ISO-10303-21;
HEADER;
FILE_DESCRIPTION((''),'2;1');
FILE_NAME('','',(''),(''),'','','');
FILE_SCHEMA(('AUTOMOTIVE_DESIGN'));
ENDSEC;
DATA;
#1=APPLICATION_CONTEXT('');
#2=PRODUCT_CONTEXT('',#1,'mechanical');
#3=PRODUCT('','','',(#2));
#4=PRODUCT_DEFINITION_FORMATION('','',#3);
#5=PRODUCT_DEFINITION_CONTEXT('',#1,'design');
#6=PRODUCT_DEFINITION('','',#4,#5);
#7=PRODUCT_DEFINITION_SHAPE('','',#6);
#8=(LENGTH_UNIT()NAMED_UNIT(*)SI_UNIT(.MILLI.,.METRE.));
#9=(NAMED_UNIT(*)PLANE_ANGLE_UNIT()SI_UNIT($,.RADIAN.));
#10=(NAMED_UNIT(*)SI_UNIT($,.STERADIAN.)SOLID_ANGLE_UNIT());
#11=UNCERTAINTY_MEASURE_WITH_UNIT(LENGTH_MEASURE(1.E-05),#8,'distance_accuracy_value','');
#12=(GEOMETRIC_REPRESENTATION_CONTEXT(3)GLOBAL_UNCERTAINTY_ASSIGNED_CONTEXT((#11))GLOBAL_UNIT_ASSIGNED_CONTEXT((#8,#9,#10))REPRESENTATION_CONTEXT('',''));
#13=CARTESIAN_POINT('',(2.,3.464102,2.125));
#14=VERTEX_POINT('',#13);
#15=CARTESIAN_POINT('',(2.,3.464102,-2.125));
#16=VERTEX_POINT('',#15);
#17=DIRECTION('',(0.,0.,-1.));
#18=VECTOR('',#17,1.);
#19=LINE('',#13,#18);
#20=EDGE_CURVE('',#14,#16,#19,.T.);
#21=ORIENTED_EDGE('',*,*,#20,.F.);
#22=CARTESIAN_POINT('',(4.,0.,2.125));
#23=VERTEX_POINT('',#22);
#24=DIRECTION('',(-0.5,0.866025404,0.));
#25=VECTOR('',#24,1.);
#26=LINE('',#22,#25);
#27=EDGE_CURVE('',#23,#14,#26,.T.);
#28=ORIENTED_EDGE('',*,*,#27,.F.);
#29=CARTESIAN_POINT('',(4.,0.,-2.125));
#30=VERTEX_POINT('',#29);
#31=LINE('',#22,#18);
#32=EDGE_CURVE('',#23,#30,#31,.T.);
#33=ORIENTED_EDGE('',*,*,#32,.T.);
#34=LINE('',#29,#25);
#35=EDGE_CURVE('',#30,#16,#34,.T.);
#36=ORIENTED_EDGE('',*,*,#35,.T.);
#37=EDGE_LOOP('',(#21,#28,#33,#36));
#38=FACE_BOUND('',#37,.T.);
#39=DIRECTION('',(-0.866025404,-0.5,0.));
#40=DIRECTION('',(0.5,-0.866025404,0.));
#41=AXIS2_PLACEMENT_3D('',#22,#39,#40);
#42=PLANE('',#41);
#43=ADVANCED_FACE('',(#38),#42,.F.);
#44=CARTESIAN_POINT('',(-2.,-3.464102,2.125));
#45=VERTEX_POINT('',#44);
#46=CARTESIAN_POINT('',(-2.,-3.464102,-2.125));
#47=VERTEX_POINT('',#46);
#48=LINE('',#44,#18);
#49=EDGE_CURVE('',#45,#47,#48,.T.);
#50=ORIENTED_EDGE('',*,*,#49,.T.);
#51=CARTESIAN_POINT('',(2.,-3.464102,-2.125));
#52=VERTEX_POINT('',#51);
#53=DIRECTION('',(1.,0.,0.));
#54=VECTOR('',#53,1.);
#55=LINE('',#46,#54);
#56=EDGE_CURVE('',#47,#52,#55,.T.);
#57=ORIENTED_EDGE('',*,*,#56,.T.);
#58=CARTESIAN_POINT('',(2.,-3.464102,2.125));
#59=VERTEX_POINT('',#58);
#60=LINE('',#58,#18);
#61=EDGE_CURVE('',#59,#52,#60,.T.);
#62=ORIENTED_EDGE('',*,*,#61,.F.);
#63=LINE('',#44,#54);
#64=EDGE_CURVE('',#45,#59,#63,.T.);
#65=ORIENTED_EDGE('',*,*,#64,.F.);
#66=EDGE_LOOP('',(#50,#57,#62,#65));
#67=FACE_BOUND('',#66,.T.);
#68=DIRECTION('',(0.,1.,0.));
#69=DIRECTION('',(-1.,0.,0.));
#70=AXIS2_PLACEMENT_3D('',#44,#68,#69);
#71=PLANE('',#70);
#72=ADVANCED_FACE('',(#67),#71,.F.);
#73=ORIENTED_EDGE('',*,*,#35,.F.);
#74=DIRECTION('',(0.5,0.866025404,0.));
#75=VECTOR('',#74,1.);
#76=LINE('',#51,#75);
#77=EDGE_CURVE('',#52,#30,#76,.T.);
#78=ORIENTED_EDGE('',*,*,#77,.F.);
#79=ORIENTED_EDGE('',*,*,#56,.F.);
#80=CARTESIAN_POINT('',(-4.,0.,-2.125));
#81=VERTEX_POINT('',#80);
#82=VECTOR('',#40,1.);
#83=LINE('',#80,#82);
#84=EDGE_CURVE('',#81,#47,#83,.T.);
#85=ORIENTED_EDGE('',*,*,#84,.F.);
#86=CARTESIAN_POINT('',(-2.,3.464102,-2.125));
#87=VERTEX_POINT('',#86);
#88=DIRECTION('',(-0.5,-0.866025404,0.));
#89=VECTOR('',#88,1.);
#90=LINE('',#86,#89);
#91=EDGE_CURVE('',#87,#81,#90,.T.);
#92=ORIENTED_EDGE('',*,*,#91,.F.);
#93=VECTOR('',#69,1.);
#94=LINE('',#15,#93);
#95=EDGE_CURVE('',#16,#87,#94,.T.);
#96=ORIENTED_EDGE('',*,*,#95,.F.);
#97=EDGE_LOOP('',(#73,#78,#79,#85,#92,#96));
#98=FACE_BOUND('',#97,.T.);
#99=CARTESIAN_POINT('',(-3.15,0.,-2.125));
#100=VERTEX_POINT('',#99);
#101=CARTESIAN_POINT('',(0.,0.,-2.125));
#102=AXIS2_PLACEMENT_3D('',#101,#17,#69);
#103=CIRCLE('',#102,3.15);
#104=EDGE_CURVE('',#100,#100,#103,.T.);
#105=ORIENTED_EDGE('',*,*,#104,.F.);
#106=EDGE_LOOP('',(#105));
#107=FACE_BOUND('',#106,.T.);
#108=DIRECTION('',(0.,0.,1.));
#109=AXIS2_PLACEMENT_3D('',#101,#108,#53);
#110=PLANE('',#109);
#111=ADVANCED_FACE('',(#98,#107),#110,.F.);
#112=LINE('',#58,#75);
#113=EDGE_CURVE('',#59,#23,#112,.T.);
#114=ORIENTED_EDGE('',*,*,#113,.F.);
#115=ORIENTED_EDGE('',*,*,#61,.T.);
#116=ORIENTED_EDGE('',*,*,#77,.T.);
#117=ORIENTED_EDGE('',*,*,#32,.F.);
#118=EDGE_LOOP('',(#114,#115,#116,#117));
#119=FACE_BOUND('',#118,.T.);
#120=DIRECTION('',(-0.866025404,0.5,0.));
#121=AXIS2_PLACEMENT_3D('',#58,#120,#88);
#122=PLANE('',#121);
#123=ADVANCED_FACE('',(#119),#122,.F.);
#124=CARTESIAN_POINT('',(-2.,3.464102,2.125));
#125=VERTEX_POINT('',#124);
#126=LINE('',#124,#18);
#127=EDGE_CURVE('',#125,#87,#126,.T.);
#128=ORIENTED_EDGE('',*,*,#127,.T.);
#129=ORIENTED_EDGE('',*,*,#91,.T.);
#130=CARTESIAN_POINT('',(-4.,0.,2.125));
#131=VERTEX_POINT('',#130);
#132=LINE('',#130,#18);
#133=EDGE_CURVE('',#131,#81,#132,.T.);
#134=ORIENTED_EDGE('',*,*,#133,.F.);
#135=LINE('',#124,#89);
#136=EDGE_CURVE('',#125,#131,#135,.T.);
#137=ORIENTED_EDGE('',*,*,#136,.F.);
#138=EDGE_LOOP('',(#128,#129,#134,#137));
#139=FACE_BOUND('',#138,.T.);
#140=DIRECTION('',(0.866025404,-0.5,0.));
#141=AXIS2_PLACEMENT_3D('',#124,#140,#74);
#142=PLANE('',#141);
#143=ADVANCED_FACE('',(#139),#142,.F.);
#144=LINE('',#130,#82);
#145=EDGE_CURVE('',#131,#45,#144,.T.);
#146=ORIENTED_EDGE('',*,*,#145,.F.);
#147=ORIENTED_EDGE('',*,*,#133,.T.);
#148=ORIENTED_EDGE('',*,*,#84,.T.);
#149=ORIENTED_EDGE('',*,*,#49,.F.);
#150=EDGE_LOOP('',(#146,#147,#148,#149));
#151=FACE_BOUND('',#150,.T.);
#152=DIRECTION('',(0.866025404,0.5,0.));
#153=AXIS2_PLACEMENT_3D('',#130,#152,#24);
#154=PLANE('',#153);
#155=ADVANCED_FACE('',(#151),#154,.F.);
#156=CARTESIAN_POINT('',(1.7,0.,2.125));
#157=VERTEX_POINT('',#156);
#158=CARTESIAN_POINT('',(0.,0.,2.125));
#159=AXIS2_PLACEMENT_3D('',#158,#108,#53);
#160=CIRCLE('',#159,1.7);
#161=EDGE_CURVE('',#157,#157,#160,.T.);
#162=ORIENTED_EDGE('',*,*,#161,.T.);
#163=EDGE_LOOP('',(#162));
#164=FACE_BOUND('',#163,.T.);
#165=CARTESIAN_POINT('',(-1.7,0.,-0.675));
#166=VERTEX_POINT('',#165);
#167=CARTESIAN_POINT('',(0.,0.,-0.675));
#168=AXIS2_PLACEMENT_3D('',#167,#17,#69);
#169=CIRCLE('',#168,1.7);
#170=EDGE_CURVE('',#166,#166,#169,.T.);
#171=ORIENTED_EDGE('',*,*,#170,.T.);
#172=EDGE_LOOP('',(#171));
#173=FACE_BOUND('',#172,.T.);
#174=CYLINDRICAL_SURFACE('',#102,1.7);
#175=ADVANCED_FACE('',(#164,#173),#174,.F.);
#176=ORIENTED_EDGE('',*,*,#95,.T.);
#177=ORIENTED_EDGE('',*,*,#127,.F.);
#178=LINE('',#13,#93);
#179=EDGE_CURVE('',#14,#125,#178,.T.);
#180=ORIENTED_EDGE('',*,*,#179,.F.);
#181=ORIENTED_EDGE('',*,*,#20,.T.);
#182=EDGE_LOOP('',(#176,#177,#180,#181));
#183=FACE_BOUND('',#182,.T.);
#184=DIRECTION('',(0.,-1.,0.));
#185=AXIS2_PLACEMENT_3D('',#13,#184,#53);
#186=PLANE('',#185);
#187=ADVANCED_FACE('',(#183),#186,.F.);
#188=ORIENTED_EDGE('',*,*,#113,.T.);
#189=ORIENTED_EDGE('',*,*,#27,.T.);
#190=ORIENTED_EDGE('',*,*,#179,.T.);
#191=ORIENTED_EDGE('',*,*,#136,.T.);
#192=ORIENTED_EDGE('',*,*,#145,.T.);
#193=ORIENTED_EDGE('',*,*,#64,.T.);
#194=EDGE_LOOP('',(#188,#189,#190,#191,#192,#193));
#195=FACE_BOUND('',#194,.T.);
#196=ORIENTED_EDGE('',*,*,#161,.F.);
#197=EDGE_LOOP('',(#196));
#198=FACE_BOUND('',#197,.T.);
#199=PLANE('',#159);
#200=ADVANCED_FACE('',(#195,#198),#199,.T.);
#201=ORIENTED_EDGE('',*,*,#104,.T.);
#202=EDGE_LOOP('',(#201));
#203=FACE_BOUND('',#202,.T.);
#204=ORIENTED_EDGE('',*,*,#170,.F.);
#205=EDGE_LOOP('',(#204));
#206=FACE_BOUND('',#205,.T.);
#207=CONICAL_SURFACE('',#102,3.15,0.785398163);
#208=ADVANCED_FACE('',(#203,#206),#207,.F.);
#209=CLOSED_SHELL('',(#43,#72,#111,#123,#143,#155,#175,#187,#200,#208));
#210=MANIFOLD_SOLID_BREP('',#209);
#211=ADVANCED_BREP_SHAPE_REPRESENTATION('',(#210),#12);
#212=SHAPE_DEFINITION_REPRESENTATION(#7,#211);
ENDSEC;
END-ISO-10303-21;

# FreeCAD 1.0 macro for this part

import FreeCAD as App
import Part
import Sketcher
Q = App.Units.Quantity

doc = App.newDocument("Part")
params = doc.addObject("Spreadsheet::Sheet", "Params")
for row, (alias, value) in enumerate([
    ("sketch1_width", "4 mm"),
    ("sketch1_length", "4 mm"),
    ("pad1_length", "4.25 mm"),
    ("sketch2_diameter", "3.4 mm"),
    ("hole_diameter", "3.4 mm"),
    ("hole_depth", "5 mm"),
    ("hole_csink_diameter", "6.3 mm"),
], start=1):
    params.set(f"A{row}", alias)
    params.set(f"B{row}", "=" + value)
    params.setAlias(f"B{row}", alias)

body = doc.addObject("PartDesign::Body", "Body")

sketch1 = body.newObject("Sketcher::SketchObject", "Sketch")
sketch1.AttachmentSupport = (doc.getObject("XY_Plane"), [""])
sketch1.MapMode = "FlatFace"
sketch1.addGeometry(Part.LineSegment(App.Vector(2, -3.5, 0), App.Vector(4, 0, 0)), False)
sketch1.addGeometry(Part.LineSegment(App.Vector(4, 0, 0), App.Vector(2, 3.5, 0)), False)
sketch1.addGeometry(Part.LineSegment(App.Vector(2, 3.5, 0), App.Vector(-2, 3.5, 0)), False)
sketch1.addGeometry(Part.LineSegment(App.Vector(-2, 3.5, 0), App.Vector(-4, 0, 0)), False)
sketch1.addGeometry(Part.LineSegment(App.Vector(-4, 0, 0), App.Vector(-2, -3.5, 0)), False)
sketch1.addGeometry(Part.LineSegment(App.Vector(-2, -3.5, 0), App.Vector(2, -3.5, 0)), False)
sketch1.addConstraint(Sketcher.Constraint("Coincident", 0, 2, 1, 1))
sketch1.addConstraint(Sketcher.Constraint("Coincident", 1, 2, 2, 1))
sketch1.addConstraint(Sketcher.Constraint("Coincident", 2, 2, 3, 1))
sketch1.addConstraint(Sketcher.Constraint("Coincident", 3, 2, 4, 1))
sketch1.addConstraint(Sketcher.Constraint("Coincident", 4, 2, 5, 1))
sketch1.addConstraint(Sketcher.Constraint("Coincident", 5, 2, 0, 1))
sketch1.addConstraint(Sketcher.Constraint("Horizontal", 2))
sketch1.addConstraint(Sketcher.Constraint("Horizontal", 5))
sketch1.addConstraint(Sketcher.Constraint("Symmetric", 0, 2, 3, 2, -1, 1))
sketch1.addConstraint(Sketcher.Constraint("Symmetric", 1, 2, 4, 2, -1, 1))
sketch1.addConstraint(Sketcher.Constraint("PointOnObject", 0, 2, -1))
sketch1.addConstraint(Sketcher.Constraint("Parallel", 0, 3))
sketch1.addConstraint(Sketcher.Constraint("Vertical", 2, 2, 4, 2))
sketch1.addConstraint(Sketcher.Constraint("DistanceX", 2, 2, 2, 1, 4.0))
sketch1.addConstraint(Sketcher.Constraint("Angle", 0, Q("60 deg")))
sketch1.addConstraint(Sketcher.Constraint("Distance", 0, 4.0))
sketch1.setExpression("Constraints[13]", "Params.sketch1_width")
sketch1.setExpression("Constraints[15]", "Params.sketch1_length")
pad1 = body.newObject("PartDesign::Pad", "Pad")
pad1.Profile = sketch1
pad1.setExpression("Length", "Params.pad1_length")
pad1.Midplane = True

sketch2 = body.newObject("Sketcher::SketchObject", "Sketch001")
sketch2.AttachmentSupport = (doc.getObject("XY_Plane"), [""])
sketch2.MapMode = "FlatFace"
sketch2.AttachmentOffset = App.Placement(App.Vector(0, 0, -2.125), App.Rotation())
sketch2.addGeometry(Part.Circle(App.Vector(0, 0, 0), App.Vector(0, 0, 1), 1.7), False)
sketch2.addConstraint(Sketcher.Constraint("Coincident", 0, 3, -1, 1))
sketch2.addConstraint(Sketcher.Constraint("Diameter", 0, 3.4))
sketch2.setExpression("Constraints[1]", "Params.sketch2_diameter")
doc.recompute()
hole = body.newObject("PartDesign::Hole", "Hole")
hole.Profile = sketch2
hole.ThreadType = "None"
hole.setExpression("Diameter", "Params.hole_diameter")
hole.DepthType = "Dimension"
hole.setExpression("Depth", "Params.hole_depth")
hole.DrillPoint = "Angled"
hole.DrillPointAngle = 118
hole.HoleCutType = "Countersink"
hole.setExpression("HoleCutDiameter", "Params.hole_csink_diameter")
hole.HoleCutCountersinkAngle = 90
hole.Reversed = True

doc.recompute()
